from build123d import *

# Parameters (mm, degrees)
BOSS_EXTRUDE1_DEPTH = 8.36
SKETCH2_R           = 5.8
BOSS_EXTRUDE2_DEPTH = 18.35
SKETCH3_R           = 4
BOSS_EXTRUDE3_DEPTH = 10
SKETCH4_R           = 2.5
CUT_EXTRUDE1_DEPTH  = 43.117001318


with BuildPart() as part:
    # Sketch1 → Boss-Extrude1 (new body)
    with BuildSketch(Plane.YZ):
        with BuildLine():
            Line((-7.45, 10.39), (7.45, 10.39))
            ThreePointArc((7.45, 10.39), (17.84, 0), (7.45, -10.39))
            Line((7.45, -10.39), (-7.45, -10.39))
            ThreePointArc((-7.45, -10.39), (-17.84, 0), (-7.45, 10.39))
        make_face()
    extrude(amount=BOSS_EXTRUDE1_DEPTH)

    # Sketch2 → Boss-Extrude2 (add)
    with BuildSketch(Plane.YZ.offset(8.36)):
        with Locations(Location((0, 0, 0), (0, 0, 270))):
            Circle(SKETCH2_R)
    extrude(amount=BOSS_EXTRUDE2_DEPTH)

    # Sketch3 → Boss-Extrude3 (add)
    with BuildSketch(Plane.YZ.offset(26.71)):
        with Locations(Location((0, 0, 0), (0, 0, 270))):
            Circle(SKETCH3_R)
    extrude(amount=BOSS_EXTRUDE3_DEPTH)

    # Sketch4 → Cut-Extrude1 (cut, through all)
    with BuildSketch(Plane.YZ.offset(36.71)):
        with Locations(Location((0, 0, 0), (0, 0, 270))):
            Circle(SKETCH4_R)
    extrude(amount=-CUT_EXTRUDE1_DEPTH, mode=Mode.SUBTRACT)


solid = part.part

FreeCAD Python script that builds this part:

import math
import FreeCAD as App
import Part
import Sketcher

V = App.Vector

doc = App.newDocument("Part")
body = doc.addObject("PartDesign::Body", "Body")

# Sketch on YZ plane
sketch1 = body.newObject("Sketcher::SketchObject", "Sketch")
sketch1.AttachmentSupport = (doc.getObject("YZ_Plane"), [""])
sketch1.MapMode = "FlatFace"
sketch1.addGeometry([
    Part.LineSegment(V(7.45, 10.39, 0), V(-7.45, 10.39, 0)),
    Part.ArcOfCircle(Part.Circle(V(-7.45, 0, 0), V(0, 0, 1), 10.39), math.radians(90), math.radians(270)),
    Part.LineSegment(V(-7.45, -10.39, 0), V(7.45, -10.39, 0)),
    Part.ArcOfCircle(Part.Circle(V(7.45, 0, 0), V(0, 0, 1), 10.39), math.radians(-90), math.radians(90)),
], False)
sketch1.addConstraint([
    Sketcher.Constraint("Tangent", 0, 2, 1, 1),
    Sketcher.Constraint("Tangent", 1, 2, 2, 1),
    Sketcher.Constraint("Tangent", 2, 2, 3, 1),
    Sketcher.Constraint("Tangent", 3, 2, 0, 1),
    Sketcher.Constraint("Horizontal", 0),
    Sketcher.Constraint("Horizontal", 2),
    Sketcher.Constraint("Symmetric", 1, 3, 3, 3, -1, 1),
    Sketcher.Constraint("Radius", 1, 10.39),
    Sketcher.Constraint("DistanceX", 0, 2, 0, 1, 14.9),
])
pad1 = body.newObject("PartDesign::Pad", "Pad")
pad1.Profile = sketch1
pad1.Length = 8.36

# Sketch on YZ plane
sketch2 = body.newObject("Sketcher::SketchObject", "Sketch001")
sketch2.AttachmentSupport = (doc.getObject("YZ_Plane"), [""])
sketch2.MapMode = "FlatFace"
sketch2.AttachmentOffset = App.Placement(V(0, 0, 8.36), App.Rotation())
sketch2.addGeometry(Part.Circle(V(0, 0, 0), V(0, 0, 1), 5.8), False)
sketch2.addConstraint([
    Sketcher.Constraint("Coincident", 0, 3, -1, 1),
    Sketcher.Constraint("Diameter", 0, 11.6),
])
pad2 = body.newObject("PartDesign::Pad", "Pad001")
pad2.Profile = sketch2
pad2.Length = 18.35

# Sketch on YZ plane
sketch3 = body.newObject("Sketcher::SketchObject", "Sketch002")
sketch3.AttachmentSupport = (doc.getObject("YZ_Plane"), [""])
sketch3.MapMode = "FlatFace"
sketch3.AttachmentOffset = App.Placement(V(0, 0, 26.71), App.Rotation())
sketch3.addGeometry(Part.Circle(V(0, 0, 0), V(0, 0, 1), 4), False)
sketch3.addConstraint([
    Sketcher.Constraint("Coincident", 0, 3, -1, 1),
    Sketcher.Constraint("Diameter", 0, 8.0),
])
pad3 = body.newObject("PartDesign::Pad", "Pad002")
pad3.Profile = sketch3
pad3.Length = 10

# Sketch on YZ plane
sketch4 = body.newObject("Sketcher::SketchObject", "Sketch003")
sketch4.AttachmentSupport = (doc.getObject("YZ_Plane"), [""])
sketch4.MapMode = "FlatFace"
sketch4.AttachmentOffset = App.Placement(V(0, 0, 36.71), App.Rotation())
sketch4.addGeometry(Part.Circle(V(0, 0, 0), V(0, 0, 1), 2.5), False)
sketch4.addConstraint([
    Sketcher.Constraint("Coincident", 0, 3, -1, 1),
    Sketcher.Constraint("Diameter", 0, 5.0),
])
pocket1 = body.newObject("PartDesign::Pocket", "Pocket")
pocket1.Profile = sketch4
pocket1.Type = "ThroughAll"

doc.recompute()
